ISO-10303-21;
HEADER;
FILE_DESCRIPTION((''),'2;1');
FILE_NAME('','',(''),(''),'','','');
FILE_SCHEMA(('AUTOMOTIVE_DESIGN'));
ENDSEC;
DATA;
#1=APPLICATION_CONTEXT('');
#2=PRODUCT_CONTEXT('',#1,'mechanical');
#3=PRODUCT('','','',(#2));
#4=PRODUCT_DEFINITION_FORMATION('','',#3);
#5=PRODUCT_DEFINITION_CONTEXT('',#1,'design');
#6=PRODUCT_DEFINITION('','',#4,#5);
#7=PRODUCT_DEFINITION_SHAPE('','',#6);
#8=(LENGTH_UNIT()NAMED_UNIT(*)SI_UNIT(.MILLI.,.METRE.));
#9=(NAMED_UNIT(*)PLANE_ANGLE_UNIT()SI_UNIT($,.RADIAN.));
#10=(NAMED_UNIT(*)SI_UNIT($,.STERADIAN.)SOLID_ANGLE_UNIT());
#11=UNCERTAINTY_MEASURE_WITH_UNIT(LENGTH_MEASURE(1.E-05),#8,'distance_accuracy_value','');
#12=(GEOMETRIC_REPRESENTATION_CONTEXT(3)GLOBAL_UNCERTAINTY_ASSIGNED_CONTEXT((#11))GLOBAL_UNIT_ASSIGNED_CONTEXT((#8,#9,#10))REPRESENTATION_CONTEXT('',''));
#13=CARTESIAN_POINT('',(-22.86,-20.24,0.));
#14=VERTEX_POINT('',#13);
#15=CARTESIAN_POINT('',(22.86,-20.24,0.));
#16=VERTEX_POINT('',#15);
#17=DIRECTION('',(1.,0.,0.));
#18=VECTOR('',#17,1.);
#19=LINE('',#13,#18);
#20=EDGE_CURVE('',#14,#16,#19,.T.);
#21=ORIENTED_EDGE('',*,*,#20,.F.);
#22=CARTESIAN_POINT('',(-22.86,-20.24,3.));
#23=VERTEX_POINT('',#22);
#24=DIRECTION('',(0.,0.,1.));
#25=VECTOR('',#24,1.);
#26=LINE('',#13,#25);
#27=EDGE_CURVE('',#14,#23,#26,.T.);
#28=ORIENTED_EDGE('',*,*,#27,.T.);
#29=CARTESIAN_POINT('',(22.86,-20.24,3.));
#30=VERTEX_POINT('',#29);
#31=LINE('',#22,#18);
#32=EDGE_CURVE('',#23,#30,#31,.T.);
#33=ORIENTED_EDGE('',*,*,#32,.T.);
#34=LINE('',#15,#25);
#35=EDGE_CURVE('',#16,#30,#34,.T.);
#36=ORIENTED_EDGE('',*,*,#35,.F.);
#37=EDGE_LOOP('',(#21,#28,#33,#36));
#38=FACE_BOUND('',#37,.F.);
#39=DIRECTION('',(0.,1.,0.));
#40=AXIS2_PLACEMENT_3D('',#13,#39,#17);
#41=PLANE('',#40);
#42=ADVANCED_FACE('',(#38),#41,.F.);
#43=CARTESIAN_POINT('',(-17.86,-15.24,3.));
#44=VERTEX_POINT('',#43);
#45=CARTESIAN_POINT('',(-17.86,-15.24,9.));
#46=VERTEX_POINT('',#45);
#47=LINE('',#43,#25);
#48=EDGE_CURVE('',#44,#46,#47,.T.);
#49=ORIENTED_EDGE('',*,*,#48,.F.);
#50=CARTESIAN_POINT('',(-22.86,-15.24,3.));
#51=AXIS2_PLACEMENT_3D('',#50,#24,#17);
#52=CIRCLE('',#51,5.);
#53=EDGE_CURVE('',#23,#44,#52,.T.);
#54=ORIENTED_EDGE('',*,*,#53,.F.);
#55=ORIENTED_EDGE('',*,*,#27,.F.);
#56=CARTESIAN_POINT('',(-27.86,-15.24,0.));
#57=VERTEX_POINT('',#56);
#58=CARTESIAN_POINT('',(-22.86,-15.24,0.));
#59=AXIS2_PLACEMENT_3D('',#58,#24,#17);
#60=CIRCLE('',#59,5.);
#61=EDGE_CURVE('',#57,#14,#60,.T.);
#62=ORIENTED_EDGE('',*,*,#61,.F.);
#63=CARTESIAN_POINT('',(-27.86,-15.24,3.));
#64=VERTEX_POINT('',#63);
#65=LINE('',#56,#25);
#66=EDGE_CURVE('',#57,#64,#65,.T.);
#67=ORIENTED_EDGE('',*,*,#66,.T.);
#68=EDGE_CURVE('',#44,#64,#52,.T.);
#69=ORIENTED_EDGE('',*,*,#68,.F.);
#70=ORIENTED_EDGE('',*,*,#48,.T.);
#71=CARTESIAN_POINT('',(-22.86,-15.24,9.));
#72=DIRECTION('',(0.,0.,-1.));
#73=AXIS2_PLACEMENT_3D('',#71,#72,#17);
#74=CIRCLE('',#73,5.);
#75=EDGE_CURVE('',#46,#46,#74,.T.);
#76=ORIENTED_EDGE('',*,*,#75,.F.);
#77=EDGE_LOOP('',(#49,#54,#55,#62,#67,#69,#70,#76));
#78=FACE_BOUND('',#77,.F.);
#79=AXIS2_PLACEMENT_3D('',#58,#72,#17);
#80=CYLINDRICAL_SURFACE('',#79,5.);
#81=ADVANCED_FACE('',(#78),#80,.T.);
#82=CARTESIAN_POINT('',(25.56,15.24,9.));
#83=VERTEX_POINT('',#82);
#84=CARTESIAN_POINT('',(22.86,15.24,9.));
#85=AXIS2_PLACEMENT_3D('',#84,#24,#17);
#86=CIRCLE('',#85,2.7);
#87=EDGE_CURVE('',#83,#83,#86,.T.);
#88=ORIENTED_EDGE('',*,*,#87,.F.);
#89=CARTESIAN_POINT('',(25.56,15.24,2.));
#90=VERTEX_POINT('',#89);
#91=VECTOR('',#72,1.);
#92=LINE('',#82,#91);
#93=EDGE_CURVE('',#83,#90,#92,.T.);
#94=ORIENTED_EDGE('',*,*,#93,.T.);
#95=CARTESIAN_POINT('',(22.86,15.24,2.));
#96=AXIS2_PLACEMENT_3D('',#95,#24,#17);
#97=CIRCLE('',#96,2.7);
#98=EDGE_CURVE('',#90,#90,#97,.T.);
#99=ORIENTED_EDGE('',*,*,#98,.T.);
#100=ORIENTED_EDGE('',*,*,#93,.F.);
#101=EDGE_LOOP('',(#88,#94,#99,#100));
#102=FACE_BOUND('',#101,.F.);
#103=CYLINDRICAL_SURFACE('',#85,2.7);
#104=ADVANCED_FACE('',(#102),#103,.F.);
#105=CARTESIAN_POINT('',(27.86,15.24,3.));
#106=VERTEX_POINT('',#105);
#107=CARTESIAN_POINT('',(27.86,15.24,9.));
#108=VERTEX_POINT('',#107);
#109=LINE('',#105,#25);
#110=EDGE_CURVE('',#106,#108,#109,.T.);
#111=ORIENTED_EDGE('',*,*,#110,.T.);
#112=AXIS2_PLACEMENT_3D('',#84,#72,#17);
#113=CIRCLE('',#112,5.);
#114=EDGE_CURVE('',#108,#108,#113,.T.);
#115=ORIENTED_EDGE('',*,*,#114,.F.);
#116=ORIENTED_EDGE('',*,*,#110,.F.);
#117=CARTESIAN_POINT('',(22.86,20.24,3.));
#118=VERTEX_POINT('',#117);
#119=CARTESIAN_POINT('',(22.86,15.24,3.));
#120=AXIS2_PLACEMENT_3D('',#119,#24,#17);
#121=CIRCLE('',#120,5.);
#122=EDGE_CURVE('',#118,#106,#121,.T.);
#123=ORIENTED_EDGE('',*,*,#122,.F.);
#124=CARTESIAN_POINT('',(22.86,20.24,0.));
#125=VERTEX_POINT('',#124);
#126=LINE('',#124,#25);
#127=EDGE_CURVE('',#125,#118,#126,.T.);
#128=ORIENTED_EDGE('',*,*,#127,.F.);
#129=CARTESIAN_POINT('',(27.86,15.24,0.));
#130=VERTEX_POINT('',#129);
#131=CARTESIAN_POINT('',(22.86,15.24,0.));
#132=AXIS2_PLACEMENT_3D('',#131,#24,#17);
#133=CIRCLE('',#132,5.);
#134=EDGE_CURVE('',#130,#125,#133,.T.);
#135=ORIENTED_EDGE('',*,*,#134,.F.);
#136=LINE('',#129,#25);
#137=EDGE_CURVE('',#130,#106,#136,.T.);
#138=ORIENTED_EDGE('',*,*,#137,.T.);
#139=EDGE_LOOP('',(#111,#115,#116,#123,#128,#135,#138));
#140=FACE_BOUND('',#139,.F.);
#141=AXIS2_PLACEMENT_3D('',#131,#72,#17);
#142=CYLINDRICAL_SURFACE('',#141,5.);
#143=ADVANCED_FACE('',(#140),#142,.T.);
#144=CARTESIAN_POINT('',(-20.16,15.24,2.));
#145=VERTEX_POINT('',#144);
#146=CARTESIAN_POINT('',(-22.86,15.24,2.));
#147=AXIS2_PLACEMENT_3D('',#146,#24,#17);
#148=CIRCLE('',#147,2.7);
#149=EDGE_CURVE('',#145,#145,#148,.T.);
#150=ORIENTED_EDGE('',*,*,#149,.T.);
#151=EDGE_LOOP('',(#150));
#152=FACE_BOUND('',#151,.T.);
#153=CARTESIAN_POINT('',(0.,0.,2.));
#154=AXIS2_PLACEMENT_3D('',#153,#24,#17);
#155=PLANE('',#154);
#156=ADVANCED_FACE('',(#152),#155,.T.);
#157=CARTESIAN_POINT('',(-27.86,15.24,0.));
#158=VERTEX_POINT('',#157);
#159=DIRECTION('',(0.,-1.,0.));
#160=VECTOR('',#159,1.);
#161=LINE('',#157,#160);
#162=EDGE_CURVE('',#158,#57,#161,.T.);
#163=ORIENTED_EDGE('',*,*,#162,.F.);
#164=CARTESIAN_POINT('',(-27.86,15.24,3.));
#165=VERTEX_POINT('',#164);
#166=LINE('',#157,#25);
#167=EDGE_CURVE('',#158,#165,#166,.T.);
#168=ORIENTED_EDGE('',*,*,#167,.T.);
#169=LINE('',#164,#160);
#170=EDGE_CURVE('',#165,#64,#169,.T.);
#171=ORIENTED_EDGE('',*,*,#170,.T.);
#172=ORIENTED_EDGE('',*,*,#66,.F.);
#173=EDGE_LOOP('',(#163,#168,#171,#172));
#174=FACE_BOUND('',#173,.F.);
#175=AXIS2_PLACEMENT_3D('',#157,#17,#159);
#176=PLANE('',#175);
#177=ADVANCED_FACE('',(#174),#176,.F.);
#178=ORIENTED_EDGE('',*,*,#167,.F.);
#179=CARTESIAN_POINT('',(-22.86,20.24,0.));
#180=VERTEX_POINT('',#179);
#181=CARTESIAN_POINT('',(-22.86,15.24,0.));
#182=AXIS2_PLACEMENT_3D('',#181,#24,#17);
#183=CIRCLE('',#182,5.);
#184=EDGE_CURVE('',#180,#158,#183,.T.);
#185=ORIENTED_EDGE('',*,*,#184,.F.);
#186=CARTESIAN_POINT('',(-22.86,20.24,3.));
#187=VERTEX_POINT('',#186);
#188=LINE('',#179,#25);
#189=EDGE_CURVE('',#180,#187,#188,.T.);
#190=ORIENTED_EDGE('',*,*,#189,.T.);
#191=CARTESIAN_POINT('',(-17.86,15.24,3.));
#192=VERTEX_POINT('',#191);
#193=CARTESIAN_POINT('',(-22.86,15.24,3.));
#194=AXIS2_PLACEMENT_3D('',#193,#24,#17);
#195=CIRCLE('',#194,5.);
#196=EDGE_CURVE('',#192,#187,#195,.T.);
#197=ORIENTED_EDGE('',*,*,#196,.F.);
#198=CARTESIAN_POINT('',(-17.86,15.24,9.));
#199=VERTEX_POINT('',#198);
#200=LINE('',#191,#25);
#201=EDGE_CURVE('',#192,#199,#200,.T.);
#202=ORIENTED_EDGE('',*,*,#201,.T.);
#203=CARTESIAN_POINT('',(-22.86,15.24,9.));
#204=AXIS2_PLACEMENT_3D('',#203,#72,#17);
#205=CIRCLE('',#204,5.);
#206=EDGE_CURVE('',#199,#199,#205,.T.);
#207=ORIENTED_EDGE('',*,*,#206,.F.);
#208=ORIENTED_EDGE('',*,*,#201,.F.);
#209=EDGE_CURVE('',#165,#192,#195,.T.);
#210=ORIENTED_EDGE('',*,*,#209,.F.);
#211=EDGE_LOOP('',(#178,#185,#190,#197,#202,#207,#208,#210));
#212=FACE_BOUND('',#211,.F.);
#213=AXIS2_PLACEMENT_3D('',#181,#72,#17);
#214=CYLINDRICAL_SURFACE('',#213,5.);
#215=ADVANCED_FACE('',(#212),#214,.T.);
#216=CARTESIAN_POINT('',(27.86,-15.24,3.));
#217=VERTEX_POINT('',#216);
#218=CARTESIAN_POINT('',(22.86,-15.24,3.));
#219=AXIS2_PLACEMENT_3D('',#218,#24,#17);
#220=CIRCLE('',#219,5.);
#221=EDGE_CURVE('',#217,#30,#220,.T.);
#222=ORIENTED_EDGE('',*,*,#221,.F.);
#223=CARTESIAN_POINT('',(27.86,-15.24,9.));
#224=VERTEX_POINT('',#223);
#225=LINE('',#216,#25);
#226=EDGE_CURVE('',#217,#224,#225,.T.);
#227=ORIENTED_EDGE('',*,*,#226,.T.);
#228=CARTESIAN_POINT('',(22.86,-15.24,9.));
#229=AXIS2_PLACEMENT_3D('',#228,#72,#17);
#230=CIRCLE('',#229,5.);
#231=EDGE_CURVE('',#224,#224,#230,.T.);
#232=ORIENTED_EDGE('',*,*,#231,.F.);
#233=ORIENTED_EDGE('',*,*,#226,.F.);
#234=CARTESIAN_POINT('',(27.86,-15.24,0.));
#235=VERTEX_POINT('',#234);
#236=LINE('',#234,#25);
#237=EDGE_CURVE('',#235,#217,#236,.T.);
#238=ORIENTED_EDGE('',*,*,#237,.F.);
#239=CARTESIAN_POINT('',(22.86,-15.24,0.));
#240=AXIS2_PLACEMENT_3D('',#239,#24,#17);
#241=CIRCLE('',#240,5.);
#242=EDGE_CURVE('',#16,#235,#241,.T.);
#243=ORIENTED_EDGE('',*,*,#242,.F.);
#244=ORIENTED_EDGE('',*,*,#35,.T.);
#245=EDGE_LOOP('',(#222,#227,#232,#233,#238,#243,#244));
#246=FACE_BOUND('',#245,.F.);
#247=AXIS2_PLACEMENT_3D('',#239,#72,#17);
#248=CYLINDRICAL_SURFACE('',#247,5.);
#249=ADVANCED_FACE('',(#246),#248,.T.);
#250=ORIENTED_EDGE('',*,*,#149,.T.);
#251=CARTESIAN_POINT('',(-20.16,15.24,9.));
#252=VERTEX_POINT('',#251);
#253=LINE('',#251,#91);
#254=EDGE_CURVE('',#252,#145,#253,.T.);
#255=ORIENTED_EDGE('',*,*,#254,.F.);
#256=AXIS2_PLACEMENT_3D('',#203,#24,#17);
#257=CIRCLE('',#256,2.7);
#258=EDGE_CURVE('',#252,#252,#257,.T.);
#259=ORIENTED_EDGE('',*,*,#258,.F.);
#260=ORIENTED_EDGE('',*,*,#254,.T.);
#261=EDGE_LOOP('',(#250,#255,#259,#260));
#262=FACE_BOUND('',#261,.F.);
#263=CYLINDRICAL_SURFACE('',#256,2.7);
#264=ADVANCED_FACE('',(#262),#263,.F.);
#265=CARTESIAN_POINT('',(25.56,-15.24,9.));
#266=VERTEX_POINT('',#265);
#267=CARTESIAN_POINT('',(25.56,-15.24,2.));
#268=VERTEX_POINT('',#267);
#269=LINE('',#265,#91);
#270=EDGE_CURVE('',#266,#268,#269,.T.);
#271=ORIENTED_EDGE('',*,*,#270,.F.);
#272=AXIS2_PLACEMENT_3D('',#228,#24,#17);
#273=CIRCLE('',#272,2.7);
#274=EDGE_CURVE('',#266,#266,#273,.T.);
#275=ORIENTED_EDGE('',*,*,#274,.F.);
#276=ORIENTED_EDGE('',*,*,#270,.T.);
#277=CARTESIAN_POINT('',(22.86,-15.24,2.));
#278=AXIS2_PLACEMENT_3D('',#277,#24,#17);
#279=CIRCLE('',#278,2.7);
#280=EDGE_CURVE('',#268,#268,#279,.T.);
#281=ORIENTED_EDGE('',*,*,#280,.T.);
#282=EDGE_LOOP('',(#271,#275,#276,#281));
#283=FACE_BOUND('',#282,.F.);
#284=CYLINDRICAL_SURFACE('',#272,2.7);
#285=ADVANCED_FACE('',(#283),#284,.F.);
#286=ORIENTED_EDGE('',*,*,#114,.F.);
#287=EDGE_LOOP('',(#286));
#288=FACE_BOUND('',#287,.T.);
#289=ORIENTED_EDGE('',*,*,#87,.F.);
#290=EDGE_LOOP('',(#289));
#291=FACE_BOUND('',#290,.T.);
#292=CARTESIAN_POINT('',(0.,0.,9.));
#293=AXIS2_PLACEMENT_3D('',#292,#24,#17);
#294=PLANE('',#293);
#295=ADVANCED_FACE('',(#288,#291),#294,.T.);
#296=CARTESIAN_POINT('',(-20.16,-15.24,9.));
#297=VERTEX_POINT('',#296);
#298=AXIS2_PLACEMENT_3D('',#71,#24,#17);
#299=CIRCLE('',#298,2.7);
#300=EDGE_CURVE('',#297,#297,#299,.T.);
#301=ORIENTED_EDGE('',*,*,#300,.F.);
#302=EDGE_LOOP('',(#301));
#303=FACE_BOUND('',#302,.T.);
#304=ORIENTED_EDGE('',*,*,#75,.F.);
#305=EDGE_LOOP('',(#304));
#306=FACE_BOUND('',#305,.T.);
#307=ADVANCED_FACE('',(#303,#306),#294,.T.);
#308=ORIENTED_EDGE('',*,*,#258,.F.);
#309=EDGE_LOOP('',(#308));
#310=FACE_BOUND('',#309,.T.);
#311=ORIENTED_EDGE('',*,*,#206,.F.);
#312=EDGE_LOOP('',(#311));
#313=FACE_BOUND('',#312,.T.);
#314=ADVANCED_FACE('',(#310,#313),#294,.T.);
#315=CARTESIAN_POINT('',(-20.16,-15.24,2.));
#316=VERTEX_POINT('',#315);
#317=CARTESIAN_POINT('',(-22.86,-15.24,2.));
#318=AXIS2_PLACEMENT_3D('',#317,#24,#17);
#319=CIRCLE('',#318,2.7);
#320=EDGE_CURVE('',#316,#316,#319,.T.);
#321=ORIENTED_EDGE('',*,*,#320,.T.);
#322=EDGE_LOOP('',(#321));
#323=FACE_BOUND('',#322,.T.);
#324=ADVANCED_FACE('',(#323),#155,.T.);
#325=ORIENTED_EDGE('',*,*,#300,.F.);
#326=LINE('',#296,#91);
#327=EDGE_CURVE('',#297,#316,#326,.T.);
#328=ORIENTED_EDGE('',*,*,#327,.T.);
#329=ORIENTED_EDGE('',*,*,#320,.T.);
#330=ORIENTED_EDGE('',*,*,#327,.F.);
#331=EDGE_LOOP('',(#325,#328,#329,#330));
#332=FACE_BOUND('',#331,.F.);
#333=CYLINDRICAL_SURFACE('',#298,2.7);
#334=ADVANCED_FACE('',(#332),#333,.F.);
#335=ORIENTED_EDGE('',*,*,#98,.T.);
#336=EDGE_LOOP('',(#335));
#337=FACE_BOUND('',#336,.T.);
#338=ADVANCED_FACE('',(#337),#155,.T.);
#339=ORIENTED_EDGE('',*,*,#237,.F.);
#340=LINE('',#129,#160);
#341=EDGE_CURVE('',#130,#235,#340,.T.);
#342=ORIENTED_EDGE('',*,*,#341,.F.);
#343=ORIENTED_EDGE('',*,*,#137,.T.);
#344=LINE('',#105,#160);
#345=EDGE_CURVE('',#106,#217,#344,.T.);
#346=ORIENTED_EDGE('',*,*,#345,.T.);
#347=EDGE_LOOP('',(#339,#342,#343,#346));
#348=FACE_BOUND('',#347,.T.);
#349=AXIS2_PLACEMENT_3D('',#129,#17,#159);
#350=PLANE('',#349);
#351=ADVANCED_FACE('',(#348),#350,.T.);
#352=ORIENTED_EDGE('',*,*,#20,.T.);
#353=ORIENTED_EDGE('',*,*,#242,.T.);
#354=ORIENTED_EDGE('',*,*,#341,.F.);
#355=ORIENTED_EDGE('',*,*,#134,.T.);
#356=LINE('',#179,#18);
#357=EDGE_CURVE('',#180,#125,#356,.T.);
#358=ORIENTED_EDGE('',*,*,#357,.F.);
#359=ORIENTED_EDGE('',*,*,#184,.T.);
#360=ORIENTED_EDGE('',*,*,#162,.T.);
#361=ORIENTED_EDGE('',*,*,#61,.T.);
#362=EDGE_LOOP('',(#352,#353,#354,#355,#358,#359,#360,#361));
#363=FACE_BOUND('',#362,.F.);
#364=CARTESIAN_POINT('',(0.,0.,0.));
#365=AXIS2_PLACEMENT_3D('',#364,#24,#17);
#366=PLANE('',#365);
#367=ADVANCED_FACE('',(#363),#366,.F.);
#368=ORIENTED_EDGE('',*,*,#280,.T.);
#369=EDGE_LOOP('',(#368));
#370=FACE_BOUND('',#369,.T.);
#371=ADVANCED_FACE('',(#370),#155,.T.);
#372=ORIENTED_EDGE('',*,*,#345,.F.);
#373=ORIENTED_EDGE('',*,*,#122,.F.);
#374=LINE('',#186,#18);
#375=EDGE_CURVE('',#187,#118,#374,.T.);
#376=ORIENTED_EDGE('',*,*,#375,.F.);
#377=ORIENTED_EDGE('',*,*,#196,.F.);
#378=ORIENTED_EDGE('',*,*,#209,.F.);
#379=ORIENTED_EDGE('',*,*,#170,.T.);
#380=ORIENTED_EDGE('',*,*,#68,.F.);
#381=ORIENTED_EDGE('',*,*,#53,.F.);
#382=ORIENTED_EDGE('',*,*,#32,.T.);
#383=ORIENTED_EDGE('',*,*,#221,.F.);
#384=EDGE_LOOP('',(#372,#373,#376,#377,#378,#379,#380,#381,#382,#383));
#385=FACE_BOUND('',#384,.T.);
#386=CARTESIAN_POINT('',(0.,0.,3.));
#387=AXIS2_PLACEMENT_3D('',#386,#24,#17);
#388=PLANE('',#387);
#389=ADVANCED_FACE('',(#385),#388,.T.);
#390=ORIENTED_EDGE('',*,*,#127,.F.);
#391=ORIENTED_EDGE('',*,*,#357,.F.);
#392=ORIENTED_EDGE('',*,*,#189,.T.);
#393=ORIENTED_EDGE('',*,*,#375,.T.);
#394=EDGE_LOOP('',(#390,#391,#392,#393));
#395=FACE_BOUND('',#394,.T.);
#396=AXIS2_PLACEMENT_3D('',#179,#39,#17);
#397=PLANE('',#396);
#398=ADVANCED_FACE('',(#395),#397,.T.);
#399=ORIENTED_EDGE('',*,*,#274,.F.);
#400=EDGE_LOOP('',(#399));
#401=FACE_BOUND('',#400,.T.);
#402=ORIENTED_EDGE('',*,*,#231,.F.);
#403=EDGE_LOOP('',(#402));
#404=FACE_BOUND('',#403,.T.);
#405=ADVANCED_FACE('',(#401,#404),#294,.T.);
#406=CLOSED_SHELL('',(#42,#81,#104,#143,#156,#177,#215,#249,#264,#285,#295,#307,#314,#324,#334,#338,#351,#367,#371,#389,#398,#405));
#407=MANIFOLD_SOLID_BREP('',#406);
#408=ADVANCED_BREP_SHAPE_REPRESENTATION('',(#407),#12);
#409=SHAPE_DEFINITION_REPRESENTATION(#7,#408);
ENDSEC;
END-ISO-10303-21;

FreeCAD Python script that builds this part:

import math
import FreeCAD as App
import Part
import Sketcher
Q = App.Units.Quantity

doc = App.newDocument("Part")
body = doc.addObject("PartDesign::Body", "Body")

sketch1 = doc.addObject("Sketcher::SketchObject", "Sketch")
body.addObject(sketch1)
sketch1.AttachmentSupport = (doc.XY_Plane, [""])
sketch1.MapMode = "FlatFace"
sketch1.addGeometry([
    Part.ArcOfCircle(Part.Circle(App.Vector(23, 15, 0), App.Vector(0, 0, 1), 5), math.radians(0), math.radians(90)),
    Part.LineSegment(App.Vector(23, 20, 0), App.Vector(-23, 20, 0)),
    Part.ArcOfCircle(Part.Circle(App.Vector(-23, 15, 0), App.Vector(0, 0, 1), 5), math.radians(90), math.radians(180)),
    Part.LineSegment(App.Vector(-28, 15, 0), App.Vector(-28, -15, 0)),
    Part.ArcOfCircle(Part.Circle(App.Vector(-23, -15, 0), App.Vector(0, 0, 1), 5), math.radians(180), math.radians(270)),
    Part.LineSegment(App.Vector(-23, -20, 0), App.Vector(23, -20, 0)),
    Part.ArcOfCircle(Part.Circle(App.Vector(23, -15, 0), App.Vector(0, 0, 1), 5), math.radians(-90), math.radians(0)),
    Part.LineSegment(App.Vector(28, -15, 0), App.Vector(28, 15, 0)),
], False)
sketch1.addConstraint([
    Sketcher.Constraint("Tangent", 0, 2, 1, 1),
    Sketcher.Constraint("Tangent", 1, 2, 2, 1),
    Sketcher.Constraint("Tangent", 2, 2, 3, 1),
    Sketcher.Constraint("Tangent", 3, 2, 4, 1),
    Sketcher.Constraint("Tangent", 4, 2, 5, 1),
    Sketcher.Constraint("Tangent", 5, 2, 6, 1),
    Sketcher.Constraint("Tangent", 6, 2, 7, 1),
    Sketcher.Constraint("Tangent", 7, 2, 0, 1),
    Sketcher.Constraint("Horizontal", 1),
    Sketcher.Constraint("Vertical", 3),
    Sketcher.Constraint("Horizontal", 5),
    Sketcher.Constraint("Vertical", 7),
    Sketcher.Constraint("Equal", 0, 2),
    Sketcher.Constraint("Equal", 2, 4),
    Sketcher.Constraint("Equal", 4, 6),
    Sketcher.Constraint("Symmetric", 0, 3, 4, 3, -1, 1),
    Sketcher.Constraint("DistanceX", 1, 2, 1, 1, Q("1.8 in")),
    Sketcher.Constraint("DistanceY", 3, 2, 3, 1, Q("1.2 in")),
    Sketcher.Constraint("Radius", 0, Q("5 mm")),
])
pad1 = doc.addObject("PartDesign::Pad", "Pad")
body.addObject(pad1)
pad1.Profile = sketch1
pad1.Length = Q("0.1181102 in")

sketch2 = doc.addObject("Sketcher::SketchObject", "Sketch001")
body.addObject(sketch2)
sketch2.AttachmentSupport = (doc.XY_Plane, [""])
sketch2.MapMode = "FlatFace"
sketch2.AttachmentOffset = App.Placement(App.Vector(0, 0, 0.1181102 * 25.4), App.Rotation())
sketch2.addGeometry([
    Part.Circle(App.Vector(23, 15, 0), App.Vector(0, 0, 1), 5),
    Part.Circle(App.Vector(23, -15, 0), App.Vector(0, 0, 1), 5),
    Part.Circle(App.Vector(-23, 15, 0), App.Vector(0, 0, 1), 5),
    Part.Circle(App.Vector(-23, -15, 0), App.Vector(0, 0, 1), 5),
], False)
sketch2.addConstraint([
    Sketcher.Constraint("Equal", 0, 1),
    Sketcher.Constraint("Equal", 1, 2),
    Sketcher.Constraint("Equal", 2, 3),
    Sketcher.Constraint("Symmetric", 1, 3, 2, 3, -1, 1),
    Sketcher.Constraint("Symmetric", 0, 3, 3, 3, -1, 1),
    Sketcher.Constraint("Symmetric", 0, 3, 2, 3, -2),
    Sketcher.Constraint("Diameter", 0, Q("0.3937 in")),
    Sketcher.Constraint("DistanceY", 1, 3, 0, 3, Q("1.2 in")),
    Sketcher.Constraint("DistanceX", 2, 3, 0, 3, Q("1.8 in")),
])
pad2 = doc.addObject("PartDesign::Pad", "Pad001")
body.addObject(pad2)
pad2.Profile = sketch2
pad2.Length = 6

sketch3 = doc.addObject("Sketcher::SketchObject", "Sketch002")
body.addObject(sketch3)
sketch3.AttachmentSupport = (doc.XY_Plane, [""])
sketch3.MapMode = "FlatFace"
sketch3.AttachmentOffset = App.Placement(App.Vector(0, 0, 9), App.Rotation())
sketch3.addGeometry([
    Part.Circle(App.Vector(22.9, 15.2, 0), App.Vector(0, 0, 1), 2.7),
    Part.Circle(App.Vector(-22.9, 15.2, 0), App.Vector(0, 0, 1), 2.7),
    Part.Circle(App.Vector(-22.9, -15.2, 0), App.Vector(0, 0, 1), 2.7),
    Part.Circle(App.Vector(22.9, -15.2, 0), App.Vector(0, 0, 1), 2.7),
], False)
sketch3.addConstraint([
    Sketcher.Constraint("Equal", 0, 1),
    Sketcher.Constraint("Equal", 1, 2),
    Sketcher.Constraint("Equal", 2, 3),
    Sketcher.Constraint("Symmetric", 0, 3, 2, 3, -1, 1),
    Sketcher.Constraint("Symmetric", 1, 3, 3, 3, -1, 1),
    Sketcher.Constraint("Symmetric", 0, 3, 1, 3, -2),
    Sketcher.Constraint("Diameter", 0, Q("0.2126 in")),
    Sketcher.Constraint("DistanceX", 1, 3, 0, 3, Q("1.8 in")),
    Sketcher.Constraint("DistanceY", 2, 3, 1, 3, Q("1.2 in")),
])
pocket1 = doc.addObject("PartDesign::Pocket", "Pocket")
body.addObject(pocket1)
pocket1.Profile = sketch3
pocket1.Length = Q("0.2755906 in")

doc.recompute()
